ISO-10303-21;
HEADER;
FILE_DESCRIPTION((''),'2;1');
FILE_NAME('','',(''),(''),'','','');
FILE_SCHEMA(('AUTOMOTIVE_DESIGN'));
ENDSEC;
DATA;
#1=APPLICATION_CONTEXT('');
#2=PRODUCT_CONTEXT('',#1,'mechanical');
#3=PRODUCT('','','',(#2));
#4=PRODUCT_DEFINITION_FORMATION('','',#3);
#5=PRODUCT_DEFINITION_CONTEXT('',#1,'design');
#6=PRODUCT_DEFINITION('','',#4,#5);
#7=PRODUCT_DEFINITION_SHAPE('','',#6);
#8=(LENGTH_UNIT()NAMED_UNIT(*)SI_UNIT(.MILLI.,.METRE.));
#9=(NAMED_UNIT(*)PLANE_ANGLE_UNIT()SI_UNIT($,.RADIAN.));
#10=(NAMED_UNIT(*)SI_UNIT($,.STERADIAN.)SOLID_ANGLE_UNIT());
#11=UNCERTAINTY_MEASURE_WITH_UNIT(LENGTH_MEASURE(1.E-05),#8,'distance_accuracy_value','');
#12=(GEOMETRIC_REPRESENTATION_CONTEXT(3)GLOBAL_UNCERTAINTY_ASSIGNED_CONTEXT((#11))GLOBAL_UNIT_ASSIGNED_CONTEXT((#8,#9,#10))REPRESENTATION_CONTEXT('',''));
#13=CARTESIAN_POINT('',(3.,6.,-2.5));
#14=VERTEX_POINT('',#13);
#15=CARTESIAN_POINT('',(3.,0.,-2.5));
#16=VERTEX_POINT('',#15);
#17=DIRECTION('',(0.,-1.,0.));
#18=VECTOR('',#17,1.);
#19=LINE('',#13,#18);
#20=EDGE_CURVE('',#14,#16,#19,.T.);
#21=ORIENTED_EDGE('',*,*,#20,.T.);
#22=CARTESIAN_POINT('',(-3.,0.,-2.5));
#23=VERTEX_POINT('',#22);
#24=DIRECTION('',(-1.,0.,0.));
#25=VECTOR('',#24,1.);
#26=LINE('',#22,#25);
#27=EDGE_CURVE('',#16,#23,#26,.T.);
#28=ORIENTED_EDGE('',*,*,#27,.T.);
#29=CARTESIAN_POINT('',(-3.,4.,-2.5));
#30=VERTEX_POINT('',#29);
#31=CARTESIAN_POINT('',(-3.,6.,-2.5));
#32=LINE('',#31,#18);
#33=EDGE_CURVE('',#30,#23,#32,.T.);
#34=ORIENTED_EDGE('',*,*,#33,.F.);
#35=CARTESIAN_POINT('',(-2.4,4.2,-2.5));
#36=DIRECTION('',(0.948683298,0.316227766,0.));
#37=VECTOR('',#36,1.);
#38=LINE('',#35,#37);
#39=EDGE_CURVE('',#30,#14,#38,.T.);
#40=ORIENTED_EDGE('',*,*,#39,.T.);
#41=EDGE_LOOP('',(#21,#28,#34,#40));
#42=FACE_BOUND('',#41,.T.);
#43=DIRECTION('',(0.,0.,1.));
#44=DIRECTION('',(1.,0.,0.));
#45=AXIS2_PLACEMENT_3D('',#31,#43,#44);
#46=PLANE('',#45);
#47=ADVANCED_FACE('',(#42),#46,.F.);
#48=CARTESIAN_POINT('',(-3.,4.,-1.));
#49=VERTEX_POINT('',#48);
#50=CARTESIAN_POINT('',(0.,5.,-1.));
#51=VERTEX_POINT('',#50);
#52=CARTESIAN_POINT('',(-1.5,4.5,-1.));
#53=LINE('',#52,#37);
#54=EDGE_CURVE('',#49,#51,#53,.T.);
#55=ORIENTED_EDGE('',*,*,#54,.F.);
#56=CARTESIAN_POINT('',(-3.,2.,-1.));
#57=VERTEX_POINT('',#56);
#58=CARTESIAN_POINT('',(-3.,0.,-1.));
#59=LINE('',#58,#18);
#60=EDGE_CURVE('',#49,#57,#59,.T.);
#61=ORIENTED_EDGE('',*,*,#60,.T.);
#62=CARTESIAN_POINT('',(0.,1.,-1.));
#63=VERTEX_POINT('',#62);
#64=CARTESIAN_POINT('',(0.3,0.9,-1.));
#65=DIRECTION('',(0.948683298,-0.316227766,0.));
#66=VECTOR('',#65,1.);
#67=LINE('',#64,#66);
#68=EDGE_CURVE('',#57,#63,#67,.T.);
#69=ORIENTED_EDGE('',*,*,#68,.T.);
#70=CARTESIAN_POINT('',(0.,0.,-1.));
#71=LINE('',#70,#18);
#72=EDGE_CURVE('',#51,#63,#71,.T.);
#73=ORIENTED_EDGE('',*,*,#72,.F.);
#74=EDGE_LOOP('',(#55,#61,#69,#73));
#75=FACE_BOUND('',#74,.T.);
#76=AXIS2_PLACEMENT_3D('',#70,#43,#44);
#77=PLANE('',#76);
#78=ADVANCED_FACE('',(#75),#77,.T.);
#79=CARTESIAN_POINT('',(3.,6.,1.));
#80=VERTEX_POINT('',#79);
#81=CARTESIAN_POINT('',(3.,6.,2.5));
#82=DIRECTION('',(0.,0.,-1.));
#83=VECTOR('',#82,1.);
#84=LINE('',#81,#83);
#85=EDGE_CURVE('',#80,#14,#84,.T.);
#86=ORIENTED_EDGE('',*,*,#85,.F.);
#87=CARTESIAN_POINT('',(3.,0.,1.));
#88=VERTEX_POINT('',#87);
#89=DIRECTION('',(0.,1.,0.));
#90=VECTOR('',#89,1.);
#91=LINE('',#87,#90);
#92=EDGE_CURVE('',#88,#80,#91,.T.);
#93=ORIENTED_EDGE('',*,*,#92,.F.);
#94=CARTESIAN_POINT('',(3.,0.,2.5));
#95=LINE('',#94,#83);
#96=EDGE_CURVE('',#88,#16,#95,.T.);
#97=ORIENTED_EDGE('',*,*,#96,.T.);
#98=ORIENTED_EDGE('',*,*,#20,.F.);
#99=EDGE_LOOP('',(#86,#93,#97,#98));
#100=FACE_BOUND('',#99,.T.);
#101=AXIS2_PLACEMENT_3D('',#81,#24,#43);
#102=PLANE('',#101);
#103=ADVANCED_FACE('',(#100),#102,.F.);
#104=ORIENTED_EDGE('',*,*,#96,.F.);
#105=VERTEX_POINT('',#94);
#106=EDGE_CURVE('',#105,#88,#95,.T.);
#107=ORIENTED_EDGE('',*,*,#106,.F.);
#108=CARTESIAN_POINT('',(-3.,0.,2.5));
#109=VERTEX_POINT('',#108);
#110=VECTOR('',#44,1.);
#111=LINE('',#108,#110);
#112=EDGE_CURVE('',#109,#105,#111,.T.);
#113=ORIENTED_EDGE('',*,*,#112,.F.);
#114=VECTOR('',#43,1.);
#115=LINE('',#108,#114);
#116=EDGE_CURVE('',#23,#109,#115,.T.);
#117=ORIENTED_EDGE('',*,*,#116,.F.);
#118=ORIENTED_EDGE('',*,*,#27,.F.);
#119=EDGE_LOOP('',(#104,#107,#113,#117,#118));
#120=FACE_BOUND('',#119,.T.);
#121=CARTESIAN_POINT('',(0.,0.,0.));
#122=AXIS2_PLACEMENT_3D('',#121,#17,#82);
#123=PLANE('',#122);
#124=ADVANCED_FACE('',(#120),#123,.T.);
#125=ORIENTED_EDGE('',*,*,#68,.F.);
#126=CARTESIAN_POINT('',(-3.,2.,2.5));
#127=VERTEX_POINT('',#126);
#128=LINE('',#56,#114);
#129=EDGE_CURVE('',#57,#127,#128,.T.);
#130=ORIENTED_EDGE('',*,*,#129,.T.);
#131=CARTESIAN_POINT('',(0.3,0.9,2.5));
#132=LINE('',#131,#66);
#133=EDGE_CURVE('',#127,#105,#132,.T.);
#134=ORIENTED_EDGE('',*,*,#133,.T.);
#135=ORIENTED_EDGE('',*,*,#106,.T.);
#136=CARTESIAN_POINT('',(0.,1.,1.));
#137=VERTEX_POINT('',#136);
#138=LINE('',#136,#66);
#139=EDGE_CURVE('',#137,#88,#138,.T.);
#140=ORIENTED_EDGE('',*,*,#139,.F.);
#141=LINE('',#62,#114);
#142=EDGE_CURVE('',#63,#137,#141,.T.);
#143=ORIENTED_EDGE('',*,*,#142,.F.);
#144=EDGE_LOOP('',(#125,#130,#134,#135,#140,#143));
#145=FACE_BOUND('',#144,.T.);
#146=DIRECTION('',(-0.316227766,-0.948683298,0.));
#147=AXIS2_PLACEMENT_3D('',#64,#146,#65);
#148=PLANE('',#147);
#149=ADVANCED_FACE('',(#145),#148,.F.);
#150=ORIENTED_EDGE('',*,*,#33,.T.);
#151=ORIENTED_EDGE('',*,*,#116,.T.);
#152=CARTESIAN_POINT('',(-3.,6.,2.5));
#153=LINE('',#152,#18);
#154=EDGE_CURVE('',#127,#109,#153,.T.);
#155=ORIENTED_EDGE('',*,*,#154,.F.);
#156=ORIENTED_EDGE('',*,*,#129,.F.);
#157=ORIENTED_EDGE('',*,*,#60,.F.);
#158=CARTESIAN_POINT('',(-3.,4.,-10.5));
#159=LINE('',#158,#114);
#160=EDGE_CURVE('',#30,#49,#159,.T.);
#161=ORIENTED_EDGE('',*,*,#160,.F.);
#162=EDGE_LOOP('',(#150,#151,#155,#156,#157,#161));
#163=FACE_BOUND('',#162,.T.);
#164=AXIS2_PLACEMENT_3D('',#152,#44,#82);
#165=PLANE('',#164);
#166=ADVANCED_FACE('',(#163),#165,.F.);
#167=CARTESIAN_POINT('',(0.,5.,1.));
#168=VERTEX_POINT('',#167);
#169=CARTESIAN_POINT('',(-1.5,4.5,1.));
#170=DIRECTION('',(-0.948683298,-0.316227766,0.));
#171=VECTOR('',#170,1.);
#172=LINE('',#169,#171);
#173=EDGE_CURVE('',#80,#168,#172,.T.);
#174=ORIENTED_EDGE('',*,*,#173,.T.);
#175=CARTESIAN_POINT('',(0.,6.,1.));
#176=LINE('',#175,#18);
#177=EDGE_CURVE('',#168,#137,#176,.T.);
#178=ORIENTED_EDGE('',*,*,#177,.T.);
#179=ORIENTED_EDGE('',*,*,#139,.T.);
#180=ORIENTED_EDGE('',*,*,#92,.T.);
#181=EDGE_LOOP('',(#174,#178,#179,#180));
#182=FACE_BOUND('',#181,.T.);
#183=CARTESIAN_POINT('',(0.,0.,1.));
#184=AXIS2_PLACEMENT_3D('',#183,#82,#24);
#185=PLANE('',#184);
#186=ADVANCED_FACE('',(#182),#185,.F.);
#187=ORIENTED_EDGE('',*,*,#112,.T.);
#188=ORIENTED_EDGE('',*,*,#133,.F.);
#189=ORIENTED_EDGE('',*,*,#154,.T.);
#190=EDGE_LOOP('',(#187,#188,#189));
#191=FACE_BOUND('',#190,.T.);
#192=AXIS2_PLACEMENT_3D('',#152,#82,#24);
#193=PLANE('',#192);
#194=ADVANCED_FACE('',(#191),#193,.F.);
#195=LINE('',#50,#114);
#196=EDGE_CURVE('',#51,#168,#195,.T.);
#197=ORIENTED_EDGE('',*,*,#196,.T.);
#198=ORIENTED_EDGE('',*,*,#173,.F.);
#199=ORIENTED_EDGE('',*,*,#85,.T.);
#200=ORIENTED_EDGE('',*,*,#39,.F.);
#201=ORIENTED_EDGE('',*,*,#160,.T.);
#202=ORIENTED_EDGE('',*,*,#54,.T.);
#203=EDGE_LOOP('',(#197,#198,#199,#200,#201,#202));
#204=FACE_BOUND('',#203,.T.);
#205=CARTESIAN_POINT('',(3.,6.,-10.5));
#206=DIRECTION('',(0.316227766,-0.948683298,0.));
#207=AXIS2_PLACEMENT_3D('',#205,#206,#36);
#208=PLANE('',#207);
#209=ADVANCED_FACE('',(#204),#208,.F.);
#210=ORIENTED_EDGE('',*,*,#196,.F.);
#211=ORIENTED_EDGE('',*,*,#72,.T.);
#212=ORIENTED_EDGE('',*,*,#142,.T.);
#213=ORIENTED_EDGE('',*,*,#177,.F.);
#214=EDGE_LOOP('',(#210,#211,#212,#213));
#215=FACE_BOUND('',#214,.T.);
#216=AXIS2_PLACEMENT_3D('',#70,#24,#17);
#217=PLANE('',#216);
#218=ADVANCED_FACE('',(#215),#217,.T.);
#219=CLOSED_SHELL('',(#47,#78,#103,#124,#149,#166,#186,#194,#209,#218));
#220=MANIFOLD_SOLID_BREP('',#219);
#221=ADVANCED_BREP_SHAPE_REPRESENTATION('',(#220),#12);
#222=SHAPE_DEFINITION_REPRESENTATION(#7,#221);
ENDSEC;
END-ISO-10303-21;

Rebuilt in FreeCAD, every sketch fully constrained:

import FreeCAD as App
import Part
import Sketcher
Q = App.Units.Quantity


def add_polygon(sketch, points):
    """Adds a closed chain of lines whose ends are joined by coincident constraints."""
    first, n = sketch.GeometryCount, len(points)
    for a, b in zip(points, points[1:] + points[:1]):
        sketch.addGeometry(Part.LineSegment(App.Vector(*a, 0), App.Vector(*b, 0)), False)
    for i in range(n):
        sketch.addConstraint(Sketcher.Constraint("Coincident", first + i, 2, first + (i + 1) % n, 1))

doc = App.newDocument("Part")
body = doc.addObject("PartDesign::Body", "Body")

# Sketch on XZ plane
sketch1 = body.newObject("Sketcher::SketchObject", "Sketch")
sketch1.AttachmentSupport = (doc.getObject("XZ_Plane"), [""])
sketch1.MapMode = "FlatFace"
add_polygon(sketch1, [(-3, -2), (-3, 2), (3, 2), (3, -2)])  # lines 0-3
sketch1.addConstraint(Sketcher.Constraint("Vertical", 0))
sketch1.addConstraint(Sketcher.Constraint("Horizontal", 1))
sketch1.addConstraint(Sketcher.Constraint("Vertical", 2))
sketch1.addConstraint(Sketcher.Constraint("Horizontal", 3))
sketch1.addConstraint(Sketcher.Constraint("Symmetric", 0, 2, 2, 2, -1, 1))
sketch1.addConstraint(Sketcher.Constraint("DistanceX", 1, 1, 1, 2, Q("6 mm")))
sketch1.addConstraint(Sketcher.Constraint("DistanceY", 0, 1, 0, 2, Q("5 mm")))
pad1 = body.newObject("PartDesign::Pad", "Pad")
pad1.Profile = sketch1
pad1.Length = 6
pad1.Reversed = True

# Sketch on XY plane
sketch2 = body.newObject("Sketcher::SketchObject", "Sketch001")
sketch2.AttachmentSupport = (doc.getObject("XY_Plane"), [""])
sketch2.MapMode = "FlatFace"
sketch2.AttachmentOffset = App.Placement(App.Vector(0, 0, 2.5), App.Rotation())
add_polygon(sketch2, [(-3, 6), (-3, 2), (0, 1), (0, 6)])  # lines 0-3
sketch2.addConstraint(Sketcher.Constraint("Vertical", 0))
sketch2.addConstraint(Sketcher.Constraint("Vertical", 2))
sketch2.addConstraint(Sketcher.Constraint("Horizontal", 3))
sketch2.addConstraint(Sketcher.Constraint("PointOnObject", 1, 2, -2))
sketch2.addConstraint(Sketcher.Constraint("DistanceX", 3, 2, 3, 1, Q("3 mm")))
sketch2.addConstraint(Sketcher.Constraint("DistanceY", 0, 2, 0, 1, Q("4 mm")))
sketch2.addConstraint(Sketcher.Constraint("DistanceY", 2, 1, 2, 2, Q("5 mm")))
sketch2.addConstraint(Sketcher.Constraint("DistanceY", -1, 1, 0, 2, Q("2 mm")))
pocket1 = body.newObject("PartDesign::Pocket", "Pocket")
pocket1.Profile = sketch2
pocket1.Length = 3.5

# Sketch on XY plane
sketch3 = body.newObject("Sketcher::SketchObject", "Sketch002")
sketch3.AttachmentSupport = (doc.getObject("XY_Plane"), [""])
sketch3.MapMode = "FlatFace"
sketch3.AttachmentOffset = App.Placement(App.Vector(0, 0, 2.5), App.Rotation())
add_polygon(sketch3, [(0, 1), (3, 0), (3, 6), (0, 6)])  # lines 0-3
sketch3.addConstraint(Sketcher.Constraint("Vertical", 1))
sketch3.addConstraint(Sketcher.Constraint("Horizontal", 2))
sketch3.addConstraint(Sketcher.Constraint("Vertical", 3))
sketch3.addConstraint(Sketcher.Constraint("PointOnObject", 0, 2, -1))
sketch3.addConstraint(Sketcher.Constraint("PointOnObject", 2, 2, -2))
sketch3.addConstraint(Sketcher.Constraint("DistanceX", 2, 2, 2, 1, Q("3 mm")))
sketch3.addConstraint(Sketcher.Constraint("DistanceY", 1, 1, 1, 2, Q("6 mm")))
sketch3.addConstraint(Sketcher.Constraint("DistanceY", 3, 2, 3, 1, Q("5 mm")))
pocket2 = body.newObject("PartDesign::Pocket", "Pocket001")
pocket2.Profile = sketch3
pocket2.Length = 1.5

# Sketch on XY plane
sketch4 = body.newObject("Sketcher::SketchObject", "Sketch003")
sketch4.AttachmentSupport = (doc.getObject("XY_Plane"), [""])
sketch4.MapMode = "FlatFace"
sketch4.AttachmentOffset = App.Placement(App.Vector(0, 0, 1), App.Rotation())
add_polygon(sketch4, [(-3, 4), (3, 6), (-3, 6)])  # lines 0-2
sketch4.addConstraint(Sketcher.Constraint("Horizontal", 1))
sketch4.addConstraint(Sketcher.Constraint("Vertical", 2))
sketch4.addConstraint(Sketcher.Constraint("DistanceX", 1, 2, 1, 1, Q("6 mm")))
sketch4.addConstraint(Sketcher.Constraint("DistanceY", 2, 2, 2, 1, Q("2 mm")))
sketch4.addConstraint(Sketcher.Constraint("DistanceX", -1, 1, 0, 2, Q("3 mm")))
sketch4.addConstraint(Sketcher.Constraint("DistanceY", -1, 1, 0, 2, Q("6 mm")))
pocket3 = body.newObject("PartDesign::Pocket", "Pocket002")
pocket3.Profile = sketch4
pocket3.Length = 11.5

doc.recompute()
